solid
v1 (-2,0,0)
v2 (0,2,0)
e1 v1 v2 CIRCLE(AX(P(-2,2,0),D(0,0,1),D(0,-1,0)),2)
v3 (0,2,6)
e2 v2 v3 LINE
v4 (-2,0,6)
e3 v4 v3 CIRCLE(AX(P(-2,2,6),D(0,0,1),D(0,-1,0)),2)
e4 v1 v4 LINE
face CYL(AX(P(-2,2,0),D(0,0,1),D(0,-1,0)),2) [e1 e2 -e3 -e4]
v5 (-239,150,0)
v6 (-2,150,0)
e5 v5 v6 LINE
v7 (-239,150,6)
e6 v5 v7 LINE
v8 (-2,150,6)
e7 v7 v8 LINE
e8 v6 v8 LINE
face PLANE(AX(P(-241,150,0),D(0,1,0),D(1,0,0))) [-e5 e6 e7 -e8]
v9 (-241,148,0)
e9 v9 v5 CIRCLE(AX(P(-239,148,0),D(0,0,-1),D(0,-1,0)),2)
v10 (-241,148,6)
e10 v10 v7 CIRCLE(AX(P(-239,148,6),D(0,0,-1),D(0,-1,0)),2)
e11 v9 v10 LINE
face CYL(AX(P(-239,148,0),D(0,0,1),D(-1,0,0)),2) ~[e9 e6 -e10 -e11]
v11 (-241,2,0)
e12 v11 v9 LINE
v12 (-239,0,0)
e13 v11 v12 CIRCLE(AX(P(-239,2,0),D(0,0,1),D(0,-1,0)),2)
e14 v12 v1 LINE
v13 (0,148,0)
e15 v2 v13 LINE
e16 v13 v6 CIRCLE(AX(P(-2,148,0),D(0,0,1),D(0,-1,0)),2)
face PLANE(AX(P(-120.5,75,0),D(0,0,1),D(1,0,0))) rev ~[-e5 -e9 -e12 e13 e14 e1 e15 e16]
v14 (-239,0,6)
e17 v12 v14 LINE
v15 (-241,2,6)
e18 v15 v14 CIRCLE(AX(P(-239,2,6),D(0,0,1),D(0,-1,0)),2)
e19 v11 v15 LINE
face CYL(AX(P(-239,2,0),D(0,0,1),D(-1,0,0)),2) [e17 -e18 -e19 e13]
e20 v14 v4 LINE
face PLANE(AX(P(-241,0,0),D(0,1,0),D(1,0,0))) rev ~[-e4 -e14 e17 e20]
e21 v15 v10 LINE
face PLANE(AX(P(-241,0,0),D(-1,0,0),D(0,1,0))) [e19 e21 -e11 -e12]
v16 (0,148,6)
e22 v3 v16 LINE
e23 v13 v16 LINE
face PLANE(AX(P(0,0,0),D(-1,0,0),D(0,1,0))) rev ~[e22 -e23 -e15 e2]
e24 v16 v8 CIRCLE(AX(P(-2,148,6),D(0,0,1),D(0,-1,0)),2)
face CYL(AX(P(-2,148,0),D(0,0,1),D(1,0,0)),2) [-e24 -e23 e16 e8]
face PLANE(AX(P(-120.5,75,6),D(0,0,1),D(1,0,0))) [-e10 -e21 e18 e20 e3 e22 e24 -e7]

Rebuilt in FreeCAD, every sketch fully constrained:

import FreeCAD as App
import Part
import Sketcher
Q = App.Units.Quantity


def edges_at(feature, points):
    """Names of the edges that pass closest to the given points."""
    edges = feature.Shape.Edges
    near = lambda p: min(range(len(edges)), key=lambda i: edges[i].distToShape(Part.Vertex(*p))[0])
    return sorted({f"Edge{near(p) + 1}" for p in points})

doc = App.newDocument("Part")
body = doc.addObject("PartDesign::Body", "Body")

# Sketch on XY plane
sketch1 = body.newObject("Sketcher::SketchObject", "Sketch")
sketch1.AttachmentSupport = (doc.getObject("XY_Plane"), [""])
sketch1.MapMode = "FlatFace"
sketch1.addGeometry(Part.LineSegment(App.Vector(-241, 150, 0), App.Vector(-241, 0, 0)), False)
sketch1.addGeometry(Part.LineSegment(App.Vector(-241, 0, 0), App.Vector(0, 0, 0)), False)
sketch1.addGeometry(Part.LineSegment(App.Vector(0, 0, 0), App.Vector(0, 150, 0)), False)
sketch1.addGeometry(Part.LineSegment(App.Vector(0, 150, 0), App.Vector(-241, 150, 0)), False)
sketch1.addConstraint(Sketcher.Constraint("Coincident", 0, 2, 1, 1))
sketch1.addConstraint(Sketcher.Constraint("Coincident", 1, 2, 2, 1))
sketch1.addConstraint(Sketcher.Constraint("Coincident", 2, 2, 3, 1))
sketch1.addConstraint(Sketcher.Constraint("Coincident", 3, 2, 0, 1))
sketch1.addConstraint(Sketcher.Constraint("Vertical", 0))
sketch1.addConstraint(Sketcher.Constraint("Horizontal", 1))
sketch1.addConstraint(Sketcher.Constraint("Vertical", 2))
sketch1.addConstraint(Sketcher.Constraint("Horizontal", 3))
sketch1.addConstraint(Sketcher.Constraint("Coincident", 1, 2, -1, 1))
sketch1.addConstraint(Sketcher.Constraint("DistanceX", 1, 1, 1, 2, Q("241 mm")))
sketch1.addConstraint(Sketcher.Constraint("DistanceY", 0, 2, 0, 1, Q("150 mm")))
pad1 = body.newObject("PartDesign::Pad", "Pad")
pad1.Profile = sketch1
pad1.Length = 6
doc.recompute()

fillet = body.newObject("PartDesign::Fillet", "Fillet")
fillet.Base = (pad1, edges_at(pad1, [
    (0, 0, 3),
    (-241, 0, 3),
    (0, 150, 3),
    (-241, 150, 3),
]))
fillet.Radius = 2

doc.recompute()
